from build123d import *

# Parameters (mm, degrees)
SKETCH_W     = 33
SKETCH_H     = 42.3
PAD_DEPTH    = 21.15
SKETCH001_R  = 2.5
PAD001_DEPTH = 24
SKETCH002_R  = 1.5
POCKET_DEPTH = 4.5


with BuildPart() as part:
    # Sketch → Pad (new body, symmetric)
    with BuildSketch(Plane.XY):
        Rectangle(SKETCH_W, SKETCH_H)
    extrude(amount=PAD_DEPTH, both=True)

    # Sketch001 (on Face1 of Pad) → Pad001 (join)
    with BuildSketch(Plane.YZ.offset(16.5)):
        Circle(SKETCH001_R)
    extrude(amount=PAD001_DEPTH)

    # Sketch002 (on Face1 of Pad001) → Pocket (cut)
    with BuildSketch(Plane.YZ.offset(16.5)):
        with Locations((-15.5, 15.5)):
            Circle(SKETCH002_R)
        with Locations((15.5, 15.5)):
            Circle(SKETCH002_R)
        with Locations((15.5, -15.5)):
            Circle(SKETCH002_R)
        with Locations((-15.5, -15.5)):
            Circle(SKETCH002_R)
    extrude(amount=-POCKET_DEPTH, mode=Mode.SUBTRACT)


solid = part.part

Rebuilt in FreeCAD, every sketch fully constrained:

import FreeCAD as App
import Part
import Sketcher
Q = App.Units.Quantity

doc = App.newDocument("Part")
body = doc.addObject("PartDesign::Body", "Body")

sketch1 = body.newObject("Sketcher::SketchObject", "Sketch")
sketch1.AttachmentSupport = (doc.getObject("XY_Plane"), [""])
sketch1.MapMode = "FlatFace"
sketch1.addGeometry(Part.LineSegment(App.Vector(-16.5, 21.15, 0), App.Vector(-16.5, -21.15, 0)), False)
sketch1.addGeometry(Part.LineSegment(App.Vector(-16.5, -21.15, 0), App.Vector(16.5, -21.15, 0)), False)
sketch1.addGeometry(Part.LineSegment(App.Vector(16.5, -21.15, 0), App.Vector(16.5, 21.15, 0)), False)
sketch1.addGeometry(Part.LineSegment(App.Vector(16.5, 21.15, 0), App.Vector(-16.5, 21.15, 0)), False)
sketch1.addConstraint(Sketcher.Constraint("Coincident", 0, 2, 1, 1))
sketch1.addConstraint(Sketcher.Constraint("Coincident", 1, 2, 2, 1))
sketch1.addConstraint(Sketcher.Constraint("Coincident", 2, 2, 3, 1))
sketch1.addConstraint(Sketcher.Constraint("Coincident", 3, 2, 0, 1))
sketch1.addConstraint(Sketcher.Constraint("Vertical", 0))
sketch1.addConstraint(Sketcher.Constraint("Horizontal", 1))
sketch1.addConstraint(Sketcher.Constraint("Vertical", 2))
sketch1.addConstraint(Sketcher.Constraint("Horizontal", 3))
sketch1.addConstraint(Sketcher.Constraint("Symmetric", 0, 2, 2, 2, -1, 1))
sketch1.addConstraint(Sketcher.Constraint("DistanceX", 1, 1, 1, 2, Q("33 mm")))
sketch1.addConstraint(Sketcher.Constraint("DistanceY", 0, 2, 0, 1, Q("42.3 mm")))
pad1 = body.newObject("PartDesign::Pad", "Pad")
pad1.Profile = sketch1
pad1.Length = 42.3
pad1.Midplane = True

sketch2 = body.newObject("Sketcher::SketchObject", "Sketch001")
sketch2.AttachmentSupport = (doc.getObject("YZ_Plane"), [""])
sketch2.MapMode = "FlatFace"
sketch2.AttachmentOffset = App.Placement(App.Vector(0, 0, 16.5), App.Rotation())
sketch2.addGeometry(Part.Circle(App.Vector(0, 0, 0), App.Vector(0, 0, 1), 2.5), False)
sketch2.addConstraint(Sketcher.Constraint("Coincident", 0, 3, -1, 1))
sketch2.addConstraint(Sketcher.Constraint("Diameter", 0, Q("5 mm")))
pad2 = body.newObject("PartDesign::Pad", "Pad001")
pad2.Profile = sketch2
pad2.Length = 24

sketch3 = body.newObject("Sketcher::SketchObject", "Sketch002")
sketch3.AttachmentSupport = (doc.getObject("YZ_Plane"), [""])
sketch3.MapMode = "FlatFace"
sketch3.AttachmentOffset = App.Placement(App.Vector(0, 0, 16.5), App.Rotation())
sketch3.addGeometry(Part.Circle(App.Vector(-15.5, 15.5, 0), App.Vector(0, 0, 1), 1.5), False)
sketch3.addGeometry(Part.Circle(App.Vector(15.5, 15.5, 0), App.Vector(0, 0, 1), 1.5), False)
sketch3.addGeometry(Part.Circle(App.Vector(15.5, -15.5, 0), App.Vector(0, 0, 1), 1.5), False)
sketch3.addGeometry(Part.Circle(App.Vector(-15.5, -15.5, 0), App.Vector(0, 0, 1), 1.5), False)
sketch3.addConstraint(Sketcher.Constraint("Equal", 0, 1))
sketch3.addConstraint(Sketcher.Constraint("Equal", 1, 2))
sketch3.addConstraint(Sketcher.Constraint("Equal", 2, 3))
sketch3.addConstraint(Sketcher.Constraint("Symmetric", 0, 3, 2, 3, -1, 1))
sketch3.addConstraint(Sketcher.Constraint("Symmetric", 1, 3, 3, 3, -1, 1))
sketch3.addConstraint(Sketcher.Constraint("Symmetric", 0, 3, 1, 3, -2))
sketch3.addConstraint(Sketcher.Constraint("Diameter", 0, Q("3 mm")))
sketch3.addConstraint(Sketcher.Constraint("DistanceX", 0, 3, 1, 3, Q("31 mm")))
sketch3.addConstraint(Sketcher.Constraint("DistanceY", 2, 3, 1, 3, Q("31 mm")))
pocket1 = body.newObject("PartDesign::Pocket", "Pocket")
pocket1.Profile = sketch3
pocket1.Length = 4.5

doc.recompute()
